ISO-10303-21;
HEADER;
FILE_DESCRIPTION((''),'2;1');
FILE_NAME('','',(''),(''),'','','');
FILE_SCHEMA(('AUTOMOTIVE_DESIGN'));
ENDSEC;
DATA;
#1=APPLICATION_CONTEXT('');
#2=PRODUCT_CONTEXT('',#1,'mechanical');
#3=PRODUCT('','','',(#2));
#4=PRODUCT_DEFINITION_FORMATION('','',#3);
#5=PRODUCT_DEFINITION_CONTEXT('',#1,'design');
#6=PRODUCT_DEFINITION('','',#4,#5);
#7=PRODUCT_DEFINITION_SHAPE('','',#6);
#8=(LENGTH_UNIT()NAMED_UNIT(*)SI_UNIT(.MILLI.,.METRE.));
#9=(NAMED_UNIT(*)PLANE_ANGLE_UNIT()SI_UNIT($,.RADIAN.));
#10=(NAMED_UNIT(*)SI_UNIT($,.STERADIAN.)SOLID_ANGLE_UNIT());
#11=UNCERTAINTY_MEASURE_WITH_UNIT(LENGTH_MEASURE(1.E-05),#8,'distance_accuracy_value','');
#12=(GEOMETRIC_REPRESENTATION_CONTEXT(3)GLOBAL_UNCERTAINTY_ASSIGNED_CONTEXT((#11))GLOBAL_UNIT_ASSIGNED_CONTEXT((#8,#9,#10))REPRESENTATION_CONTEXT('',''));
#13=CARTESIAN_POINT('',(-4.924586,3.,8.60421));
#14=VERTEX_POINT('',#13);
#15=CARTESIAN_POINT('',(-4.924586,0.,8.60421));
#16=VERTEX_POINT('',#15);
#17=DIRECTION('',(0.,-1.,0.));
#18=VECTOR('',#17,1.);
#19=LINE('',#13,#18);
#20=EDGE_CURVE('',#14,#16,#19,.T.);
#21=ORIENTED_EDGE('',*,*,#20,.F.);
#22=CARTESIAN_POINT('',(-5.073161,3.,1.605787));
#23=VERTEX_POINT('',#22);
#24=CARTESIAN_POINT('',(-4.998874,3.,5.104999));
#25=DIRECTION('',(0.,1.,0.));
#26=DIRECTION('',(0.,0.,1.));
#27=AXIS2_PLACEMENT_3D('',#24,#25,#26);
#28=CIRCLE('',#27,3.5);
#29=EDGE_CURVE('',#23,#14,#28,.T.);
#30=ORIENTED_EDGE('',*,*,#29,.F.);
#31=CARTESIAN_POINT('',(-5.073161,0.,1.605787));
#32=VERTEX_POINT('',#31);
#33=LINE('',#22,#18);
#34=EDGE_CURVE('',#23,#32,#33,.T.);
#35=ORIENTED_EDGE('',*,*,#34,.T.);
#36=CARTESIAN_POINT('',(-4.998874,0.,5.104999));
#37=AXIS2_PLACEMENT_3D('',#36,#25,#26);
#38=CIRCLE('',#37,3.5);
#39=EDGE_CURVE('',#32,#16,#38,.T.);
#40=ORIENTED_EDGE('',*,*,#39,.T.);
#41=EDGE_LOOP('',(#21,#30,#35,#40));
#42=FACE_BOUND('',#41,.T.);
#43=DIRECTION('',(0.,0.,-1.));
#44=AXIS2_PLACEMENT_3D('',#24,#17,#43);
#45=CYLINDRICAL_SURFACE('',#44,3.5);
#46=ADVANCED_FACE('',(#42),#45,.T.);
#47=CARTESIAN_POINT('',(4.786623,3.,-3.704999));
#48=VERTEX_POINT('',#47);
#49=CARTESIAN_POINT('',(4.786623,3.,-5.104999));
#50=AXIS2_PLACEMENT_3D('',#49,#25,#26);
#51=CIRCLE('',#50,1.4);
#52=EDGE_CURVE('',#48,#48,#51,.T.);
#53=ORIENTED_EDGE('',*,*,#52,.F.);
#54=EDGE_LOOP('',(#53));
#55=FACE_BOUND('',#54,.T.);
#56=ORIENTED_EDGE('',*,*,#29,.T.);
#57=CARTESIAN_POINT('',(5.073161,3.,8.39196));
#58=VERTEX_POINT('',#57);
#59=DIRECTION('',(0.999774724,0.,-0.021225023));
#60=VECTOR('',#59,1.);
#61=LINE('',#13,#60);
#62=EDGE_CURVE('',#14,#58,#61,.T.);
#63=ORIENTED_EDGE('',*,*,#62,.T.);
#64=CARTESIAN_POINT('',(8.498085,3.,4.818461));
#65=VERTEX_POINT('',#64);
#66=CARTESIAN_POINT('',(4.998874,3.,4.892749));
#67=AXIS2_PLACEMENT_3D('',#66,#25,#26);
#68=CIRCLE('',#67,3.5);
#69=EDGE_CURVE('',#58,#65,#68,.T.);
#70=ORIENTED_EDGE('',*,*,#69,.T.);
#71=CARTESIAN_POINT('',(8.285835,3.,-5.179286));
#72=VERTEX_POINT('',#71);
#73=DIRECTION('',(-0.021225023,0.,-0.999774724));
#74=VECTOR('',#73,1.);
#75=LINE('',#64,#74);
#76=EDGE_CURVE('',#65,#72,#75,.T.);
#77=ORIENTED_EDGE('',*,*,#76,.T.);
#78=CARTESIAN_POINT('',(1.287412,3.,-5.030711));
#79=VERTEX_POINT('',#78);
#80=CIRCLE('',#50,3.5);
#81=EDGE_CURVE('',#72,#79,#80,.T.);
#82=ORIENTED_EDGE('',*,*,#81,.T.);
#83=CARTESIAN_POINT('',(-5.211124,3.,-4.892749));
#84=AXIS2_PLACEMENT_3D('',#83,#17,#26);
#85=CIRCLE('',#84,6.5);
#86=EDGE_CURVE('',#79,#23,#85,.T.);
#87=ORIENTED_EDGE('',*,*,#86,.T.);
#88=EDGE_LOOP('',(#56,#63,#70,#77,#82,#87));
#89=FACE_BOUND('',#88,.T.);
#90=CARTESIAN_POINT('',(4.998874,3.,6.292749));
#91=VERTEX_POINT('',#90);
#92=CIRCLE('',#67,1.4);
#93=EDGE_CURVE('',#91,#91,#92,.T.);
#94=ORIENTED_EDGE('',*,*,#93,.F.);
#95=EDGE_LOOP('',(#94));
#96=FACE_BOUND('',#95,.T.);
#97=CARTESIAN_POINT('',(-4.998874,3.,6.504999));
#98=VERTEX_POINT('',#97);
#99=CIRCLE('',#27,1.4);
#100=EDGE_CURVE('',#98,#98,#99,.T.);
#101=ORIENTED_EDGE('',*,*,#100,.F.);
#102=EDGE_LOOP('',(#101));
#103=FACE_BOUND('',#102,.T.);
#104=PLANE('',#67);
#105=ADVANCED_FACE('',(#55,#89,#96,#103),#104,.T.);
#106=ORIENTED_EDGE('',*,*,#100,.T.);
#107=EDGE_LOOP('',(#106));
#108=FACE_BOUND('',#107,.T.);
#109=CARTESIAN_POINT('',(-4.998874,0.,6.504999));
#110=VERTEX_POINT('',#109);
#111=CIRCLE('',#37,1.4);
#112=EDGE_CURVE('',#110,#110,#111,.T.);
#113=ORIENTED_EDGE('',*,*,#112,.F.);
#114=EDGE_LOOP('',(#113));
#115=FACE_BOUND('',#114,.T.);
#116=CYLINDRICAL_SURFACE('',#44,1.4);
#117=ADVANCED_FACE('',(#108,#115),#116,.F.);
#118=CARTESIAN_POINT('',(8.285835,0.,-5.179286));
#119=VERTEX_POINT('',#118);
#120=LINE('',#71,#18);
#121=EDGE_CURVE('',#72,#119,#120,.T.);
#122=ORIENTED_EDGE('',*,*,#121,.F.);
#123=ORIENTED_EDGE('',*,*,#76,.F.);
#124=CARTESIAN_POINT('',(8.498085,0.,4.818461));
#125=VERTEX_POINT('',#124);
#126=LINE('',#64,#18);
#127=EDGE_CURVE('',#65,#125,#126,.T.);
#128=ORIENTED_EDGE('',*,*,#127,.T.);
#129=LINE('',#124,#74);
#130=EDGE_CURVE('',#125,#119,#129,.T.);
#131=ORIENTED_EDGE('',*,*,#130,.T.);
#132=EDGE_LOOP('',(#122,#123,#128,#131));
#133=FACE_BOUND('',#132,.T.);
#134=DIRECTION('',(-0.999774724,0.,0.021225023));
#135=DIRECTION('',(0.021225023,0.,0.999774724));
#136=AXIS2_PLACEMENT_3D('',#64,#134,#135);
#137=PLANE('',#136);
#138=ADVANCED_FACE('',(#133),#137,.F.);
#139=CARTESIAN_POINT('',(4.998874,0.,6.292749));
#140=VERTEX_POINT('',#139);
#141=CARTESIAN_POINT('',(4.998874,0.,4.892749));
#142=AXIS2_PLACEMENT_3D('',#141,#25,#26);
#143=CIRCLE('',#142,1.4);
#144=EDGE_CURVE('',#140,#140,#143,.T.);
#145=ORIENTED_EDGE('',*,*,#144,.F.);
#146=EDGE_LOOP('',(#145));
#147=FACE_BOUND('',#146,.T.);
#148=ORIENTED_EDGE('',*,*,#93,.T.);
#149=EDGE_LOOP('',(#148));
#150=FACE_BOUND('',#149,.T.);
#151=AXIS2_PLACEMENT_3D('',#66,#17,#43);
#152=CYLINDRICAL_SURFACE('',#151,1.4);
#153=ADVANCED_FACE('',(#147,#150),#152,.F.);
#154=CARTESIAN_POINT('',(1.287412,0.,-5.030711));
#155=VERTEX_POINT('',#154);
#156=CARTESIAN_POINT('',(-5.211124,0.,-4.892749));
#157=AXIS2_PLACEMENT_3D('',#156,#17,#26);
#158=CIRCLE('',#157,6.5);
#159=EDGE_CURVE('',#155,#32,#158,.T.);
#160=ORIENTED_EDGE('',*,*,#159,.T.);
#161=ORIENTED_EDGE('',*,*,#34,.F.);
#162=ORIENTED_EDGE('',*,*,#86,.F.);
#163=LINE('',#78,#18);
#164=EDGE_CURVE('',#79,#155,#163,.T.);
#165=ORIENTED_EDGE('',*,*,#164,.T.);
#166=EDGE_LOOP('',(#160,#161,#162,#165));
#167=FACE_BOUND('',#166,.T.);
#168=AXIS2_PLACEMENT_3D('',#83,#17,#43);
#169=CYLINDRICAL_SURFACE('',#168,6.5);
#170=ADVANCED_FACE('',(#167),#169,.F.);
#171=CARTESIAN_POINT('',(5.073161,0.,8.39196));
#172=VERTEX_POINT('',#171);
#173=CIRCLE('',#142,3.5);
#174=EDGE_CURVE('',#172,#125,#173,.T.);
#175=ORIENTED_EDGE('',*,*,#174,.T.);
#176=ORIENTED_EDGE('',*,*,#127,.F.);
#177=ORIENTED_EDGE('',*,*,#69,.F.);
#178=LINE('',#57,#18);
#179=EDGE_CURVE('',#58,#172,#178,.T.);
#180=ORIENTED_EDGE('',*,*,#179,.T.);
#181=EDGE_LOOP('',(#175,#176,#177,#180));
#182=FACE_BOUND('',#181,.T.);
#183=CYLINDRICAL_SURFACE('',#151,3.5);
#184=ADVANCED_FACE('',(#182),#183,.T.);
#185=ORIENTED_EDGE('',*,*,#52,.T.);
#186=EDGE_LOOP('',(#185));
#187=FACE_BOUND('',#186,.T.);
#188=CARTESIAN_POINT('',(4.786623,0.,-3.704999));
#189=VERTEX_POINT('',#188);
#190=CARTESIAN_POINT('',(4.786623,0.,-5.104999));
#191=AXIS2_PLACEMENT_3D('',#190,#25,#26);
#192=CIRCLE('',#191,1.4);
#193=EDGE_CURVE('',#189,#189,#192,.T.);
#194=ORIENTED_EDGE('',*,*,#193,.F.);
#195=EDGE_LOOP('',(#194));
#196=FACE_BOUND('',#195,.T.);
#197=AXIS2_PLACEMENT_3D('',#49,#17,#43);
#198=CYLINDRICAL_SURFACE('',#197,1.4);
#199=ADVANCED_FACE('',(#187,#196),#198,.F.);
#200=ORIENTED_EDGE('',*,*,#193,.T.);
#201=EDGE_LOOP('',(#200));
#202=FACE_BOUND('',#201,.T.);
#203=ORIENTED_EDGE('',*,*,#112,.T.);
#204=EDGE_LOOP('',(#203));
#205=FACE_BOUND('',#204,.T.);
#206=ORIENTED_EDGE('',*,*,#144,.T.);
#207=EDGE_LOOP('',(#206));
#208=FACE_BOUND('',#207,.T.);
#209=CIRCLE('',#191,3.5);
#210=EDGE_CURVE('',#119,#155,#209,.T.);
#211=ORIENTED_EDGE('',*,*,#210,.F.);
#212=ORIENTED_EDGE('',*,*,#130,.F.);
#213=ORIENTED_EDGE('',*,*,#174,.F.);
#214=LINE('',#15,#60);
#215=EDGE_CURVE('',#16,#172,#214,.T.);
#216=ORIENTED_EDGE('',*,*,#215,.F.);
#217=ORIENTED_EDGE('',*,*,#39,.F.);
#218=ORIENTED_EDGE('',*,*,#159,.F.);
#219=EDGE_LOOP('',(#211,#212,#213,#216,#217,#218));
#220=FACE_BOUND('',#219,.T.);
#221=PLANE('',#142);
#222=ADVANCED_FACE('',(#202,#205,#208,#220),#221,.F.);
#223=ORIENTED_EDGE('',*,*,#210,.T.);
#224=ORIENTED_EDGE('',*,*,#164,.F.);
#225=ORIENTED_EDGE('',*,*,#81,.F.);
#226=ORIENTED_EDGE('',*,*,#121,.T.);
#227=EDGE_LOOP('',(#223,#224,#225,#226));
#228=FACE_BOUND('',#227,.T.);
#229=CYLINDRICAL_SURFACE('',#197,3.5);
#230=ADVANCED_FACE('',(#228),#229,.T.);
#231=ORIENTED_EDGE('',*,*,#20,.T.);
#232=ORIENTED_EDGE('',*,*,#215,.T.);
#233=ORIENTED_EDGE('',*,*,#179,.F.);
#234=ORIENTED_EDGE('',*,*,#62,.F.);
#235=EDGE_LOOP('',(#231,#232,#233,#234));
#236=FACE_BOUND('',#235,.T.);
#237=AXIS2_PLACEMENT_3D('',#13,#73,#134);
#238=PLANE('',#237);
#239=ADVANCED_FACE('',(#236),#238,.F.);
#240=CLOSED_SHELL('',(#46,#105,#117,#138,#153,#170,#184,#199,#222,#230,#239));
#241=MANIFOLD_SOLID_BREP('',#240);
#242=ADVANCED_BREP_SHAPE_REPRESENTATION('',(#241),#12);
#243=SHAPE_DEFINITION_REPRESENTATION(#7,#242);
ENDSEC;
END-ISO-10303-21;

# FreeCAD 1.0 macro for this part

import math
import FreeCAD as App
import Part
import Sketcher
from FreeCAD import Vector

doc = App.newDocument("Part")
body = doc.addObject("PartDesign::Body", "Body")

sketch1 = body.newObject("Sketcher::SketchObject", "Sketch")
sketch1.AttachmentSupport = (doc.getObject("XZ_Plane"), [""])
sketch1.MapMode = "FlatFace"
sketch1.addGeometry([
    Part.LineSegment(Vector(8.5, 4.8, 0), Vector(8.3, -5.2, 0)),
    Part.ArcOfCircle(Part.Circle(Vector(4.8, -5.1, 0), Vector(0, 0, 1), 3.5), math.radians(179), math.radians(359)),
    Part.ArcOfCircle(Part.Circle(Vector(-5.2, -4.9, 0), Vector(0, 0, 1), 6.5), math.radians(-1), math.radians(89)),
    Part.ArcOfCircle(Part.Circle(Vector(-5, 5.1, 0), Vector(0, 0, 1), 3.5), math.radians(89), math.radians(269)),
    Part.LineSegment(Vector(-4.9, 8.6, 0), Vector(5.1, 8.4, 0)),
    Part.ArcOfCircle(Part.Circle(Vector(5, 4.9, 0), Vector(0, 0, 1), 3.5), math.radians(-1), math.radians(89)),
    Part.Circle(Vector(-5, 5.1, 0), Vector(0, 0, 1), 1.4),
    Part.Circle(Vector(5, 4.9, 0), Vector(0, 0, 1), 1.4),
    Part.Circle(Vector(4.8, -5.1, 0), Vector(0, 0, 1), 1.4),
], False)
sketch1.addConstraint([
    Sketcher.Constraint("Tangent", 0, 2, 1, 2),
    Sketcher.Constraint("Tangent", 1, 1, 2, 1),
    Sketcher.Constraint("Tangent", 2, 2, 3, 2),
    Sketcher.Constraint("Tangent", 3, 1, 4, 1),
    Sketcher.Constraint("Tangent", 4, 2, 5, 2),
    Sketcher.Constraint("Tangent", 5, 1, 0, 1),
    Sketcher.Constraint("Coincident", 6, 3, 3, 3),
    Sketcher.Constraint("Coincident", 7, 3, 5, 3),
    Sketcher.Constraint("Coincident", 8, 3, 1, 3),
    Sketcher.Constraint("Equal", 1, 3),
    Sketcher.Constraint("Equal", 3, 5),
    Sketcher.Constraint("Equal", 6, 7),
    Sketcher.Constraint("Equal", 7, 8),
    Sketcher.Constraint("Perpendicular", 0, 4),
    Sketcher.Constraint("Equal", 0, 4),
    Sketcher.Constraint("Diameter", 6, 2.8),
    Sketcher.Constraint("Radius", 1, 3.5),
    Sketcher.Constraint("Radius", 2, 6.5),
    Sketcher.Constraint("Distance", 0, 10.0),
    Sketcher.Constraint("DistanceY", 1, 3, -1, 1, 5.104999),
    Sketcher.Constraint("DistanceY", -1, 1, 3, 3, 5.104999),
    Sketcher.Constraint("DistanceX", -1, 1, 1, 1, 1.287412),
])
pad1 = body.newObject("PartDesign::Pad", "Pad")
pad1.Profile = sketch1
pad1.Length = 3
pad1.Reversed = True

doc.recompute()
